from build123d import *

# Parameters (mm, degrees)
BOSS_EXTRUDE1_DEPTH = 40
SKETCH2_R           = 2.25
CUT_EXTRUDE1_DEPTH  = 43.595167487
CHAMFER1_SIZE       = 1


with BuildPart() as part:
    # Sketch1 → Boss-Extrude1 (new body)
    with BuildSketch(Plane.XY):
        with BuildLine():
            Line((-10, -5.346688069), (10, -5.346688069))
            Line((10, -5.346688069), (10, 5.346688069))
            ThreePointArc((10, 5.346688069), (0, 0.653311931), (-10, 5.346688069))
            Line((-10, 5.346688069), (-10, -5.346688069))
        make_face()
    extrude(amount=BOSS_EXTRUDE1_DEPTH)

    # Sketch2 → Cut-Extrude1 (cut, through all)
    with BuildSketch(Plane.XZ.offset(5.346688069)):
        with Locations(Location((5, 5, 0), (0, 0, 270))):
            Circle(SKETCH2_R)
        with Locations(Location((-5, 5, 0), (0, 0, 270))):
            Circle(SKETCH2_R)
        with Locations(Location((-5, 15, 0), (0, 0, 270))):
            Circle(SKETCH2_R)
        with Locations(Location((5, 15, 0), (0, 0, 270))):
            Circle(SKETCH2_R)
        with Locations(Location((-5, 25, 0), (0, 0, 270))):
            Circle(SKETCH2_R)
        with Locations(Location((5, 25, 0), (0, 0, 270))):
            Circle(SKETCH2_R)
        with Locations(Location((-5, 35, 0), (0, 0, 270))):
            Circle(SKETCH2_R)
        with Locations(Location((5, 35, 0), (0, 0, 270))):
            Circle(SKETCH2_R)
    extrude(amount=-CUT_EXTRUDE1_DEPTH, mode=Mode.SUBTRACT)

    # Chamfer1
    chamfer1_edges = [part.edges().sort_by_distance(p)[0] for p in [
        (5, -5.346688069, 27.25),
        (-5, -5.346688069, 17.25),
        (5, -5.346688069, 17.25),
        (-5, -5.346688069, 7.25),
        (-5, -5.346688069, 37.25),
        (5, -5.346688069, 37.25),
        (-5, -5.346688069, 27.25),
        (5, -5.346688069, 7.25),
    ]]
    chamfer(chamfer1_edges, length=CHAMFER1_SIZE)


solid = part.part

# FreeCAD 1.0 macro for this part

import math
import FreeCAD as App
import Part
import Sketcher

V = App.Vector


def edges_at(feature, points):
    """Names of the edges that pass closest to the given points."""
    edges = feature.Shape.Edges
    near = lambda p: min(range(len(edges)), key=lambda i: edges[i].distToShape(Part.Vertex(*p))[0])
    return sorted({f"Edge{near(p) + 1}" for p in points})

doc = App.newDocument("Part")
params = doc.addObject("Spreadsheet::Sheet", "Params")
for row, (alias, value) in enumerate([
    ("sketch1_radius", "13 mm"),
    ("sketch1_width", "20 mm"),
    ("pad1_length", "40 mm"),
    ("sketch2_diameter", "4.5 mm"),
    ("chamfer_size", "1 mm"),
], start=1):
    params.set(f"A{row}", alias)
    params.set(f"B{row}", "=" + value)
    params.setAlias(f"B{row}", alias)

body = doc.addObject("PartDesign::Body", "Body")

sketch1 = body.newObject("Sketcher::SketchObject", "Sketch")
sketch1.AttachmentSupport = (doc.getObject("XY_Plane"), [""])
sketch1.MapMode = "FlatFace"
sketch1.addGeometry([
    Part.LineSegment(V(-10, -5.346688, 0), V(10, -5.346688, 0)),
    Part.LineSegment(V(10, -5.346688, 0), V(10, 5.346688, 0)),
    Part.ArcOfCircle(Part.Circle(V(0, 13.653312, 0), V(0, 0, 1), 13), math.radians(-140.284863), math.radians(-39.715137)),
    Part.LineSegment(V(-10, 5.346688, 0), V(-10, -5.346688, 0)),
], False)
sketch1.addConstraint([
    Sketcher.Constraint("Coincident", 0, 2, 1, 1),
    Sketcher.Constraint("Coincident", 1, 2, 2, 2),
    Sketcher.Constraint("Coincident", 2, 1, 3, 1),
    Sketcher.Constraint("Coincident", 3, 2, 0, 1),
    Sketcher.Constraint("Horizontal", 0),
    Sketcher.Constraint("Vertical", 1),
    Sketcher.Constraint("Vertical", 3),
    Sketcher.Constraint("Symmetric", 0, 2, 2, 1, -1, 1),
    Sketcher.Constraint("PointOnObject", 2, 3, -2),
    Sketcher.Constraint("Radius", 2, 13.0),
    Sketcher.Constraint("DistanceX", 0, 1, 0, 2, 20.0),
    Sketcher.Constraint("DistanceY", 0, 2, 2, 3, 19.0),
])
sketch1.setExpression("Constraints[9]", "Params.sketch1_radius")
sketch1.setExpression("Constraints[10]", "Params.sketch1_width")
pad1 = body.newObject("PartDesign::Pad", "Pad")
pad1.Profile = sketch1
pad1.setExpression("Length", "Params.pad1_length")

sketch2 = body.newObject("Sketcher::SketchObject", "Sketch001")
sketch2.AttachmentSupport = (doc.getObject("XZ_Plane"), [""])
sketch2.MapMode = "FlatFace"
sketch2.AttachmentOffset = App.Placement(V(0, 0, 5.346688), App.Rotation())
sketch2.addGeometry([
    Part.Circle(V(5, 5, 0), V(0, 0, 1), 2.25),
    Part.Circle(V(-5, 5, 0), V(0, 0, 1), 2.25),
    Part.Circle(V(-5, 15, 0), V(0, 0, 1), 2.25),
    Part.Circle(V(5, 15, 0), V(0, 0, 1), 2.25),
    Part.Circle(V(-5, 25, 0), V(0, 0, 1), 2.25),
    Part.Circle(V(5, 25, 0), V(0, 0, 1), 2.25),
    Part.Circle(V(-5, 35, 0), V(0, 0, 1), 2.25),
    Part.Circle(V(5, 35, 0), V(0, 0, 1), 2.25),
], False)
sketch2.addConstraint([
    Sketcher.Constraint("Equal", 0, 1),
    Sketcher.Constraint("Equal", 1, 2),
    Sketcher.Constraint("Equal", 2, 3),
    Sketcher.Constraint("Equal", 3, 4),
    Sketcher.Constraint("Equal", 4, 5),
    Sketcher.Constraint("Equal", 5, 6),
    Sketcher.Constraint("Equal", 6, 7),
    Sketcher.Constraint("Symmetric", 0, 3, 1, 3, -2),
    Sketcher.Constraint("Symmetric", 2, 3, 3, 3, -2),
    Sketcher.Constraint("Symmetric", 4, 3, 5, 3, -2),
    Sketcher.Constraint("Symmetric", 6, 3, 7, 3, -2),
    Sketcher.Constraint("Vertical", 1, 3, 2, 3),
    Sketcher.Constraint("Vertical", 2, 3, 4, 3),
    Sketcher.Constraint("Vertical", 4, 3, 6, 3),
    Sketcher.Constraint("Diameter", 0, 4.5),
    Sketcher.Constraint("DistanceX", -1, 1, 0, 3, 5.0),
    Sketcher.Constraint("DistanceY", -1, 1, 0, 3, 5.0),
    Sketcher.Constraint("DistanceY", -1, 1, 2, 3, 15.0),
    Sketcher.Constraint("DistanceY", -1, 1, 4, 3, 25.0),
    Sketcher.Constraint("DistanceY", -1, 1, 6, 3, 35.0),
])
sketch2.setExpression("Constraints[14]", "Params.sketch2_diameter")
pocket1 = body.newObject("PartDesign::Pocket", "Pocket")
pocket1.Profile = sketch2
pocket1.Type = "ThroughAll"
doc.recompute()

chamfer = body.newObject("PartDesign::Chamfer", "Chamfer")
chamfer.Base = (pocket1, edges_at(pocket1, [
    (5, -5.347, 27.25),
    (-5, -5.347, 17.25),
    (5, -5.347, 17.25),
    (-5, -5.347, 7.25),
    (-5, -5.347, 37.25),
    (5, -5.347, 37.25),
    (-5, -5.347, 27.25),
    (5, -5.347, 7.25),
]))
chamfer.setExpression("Size", "Params.chamfer_size")

doc.recompute()
